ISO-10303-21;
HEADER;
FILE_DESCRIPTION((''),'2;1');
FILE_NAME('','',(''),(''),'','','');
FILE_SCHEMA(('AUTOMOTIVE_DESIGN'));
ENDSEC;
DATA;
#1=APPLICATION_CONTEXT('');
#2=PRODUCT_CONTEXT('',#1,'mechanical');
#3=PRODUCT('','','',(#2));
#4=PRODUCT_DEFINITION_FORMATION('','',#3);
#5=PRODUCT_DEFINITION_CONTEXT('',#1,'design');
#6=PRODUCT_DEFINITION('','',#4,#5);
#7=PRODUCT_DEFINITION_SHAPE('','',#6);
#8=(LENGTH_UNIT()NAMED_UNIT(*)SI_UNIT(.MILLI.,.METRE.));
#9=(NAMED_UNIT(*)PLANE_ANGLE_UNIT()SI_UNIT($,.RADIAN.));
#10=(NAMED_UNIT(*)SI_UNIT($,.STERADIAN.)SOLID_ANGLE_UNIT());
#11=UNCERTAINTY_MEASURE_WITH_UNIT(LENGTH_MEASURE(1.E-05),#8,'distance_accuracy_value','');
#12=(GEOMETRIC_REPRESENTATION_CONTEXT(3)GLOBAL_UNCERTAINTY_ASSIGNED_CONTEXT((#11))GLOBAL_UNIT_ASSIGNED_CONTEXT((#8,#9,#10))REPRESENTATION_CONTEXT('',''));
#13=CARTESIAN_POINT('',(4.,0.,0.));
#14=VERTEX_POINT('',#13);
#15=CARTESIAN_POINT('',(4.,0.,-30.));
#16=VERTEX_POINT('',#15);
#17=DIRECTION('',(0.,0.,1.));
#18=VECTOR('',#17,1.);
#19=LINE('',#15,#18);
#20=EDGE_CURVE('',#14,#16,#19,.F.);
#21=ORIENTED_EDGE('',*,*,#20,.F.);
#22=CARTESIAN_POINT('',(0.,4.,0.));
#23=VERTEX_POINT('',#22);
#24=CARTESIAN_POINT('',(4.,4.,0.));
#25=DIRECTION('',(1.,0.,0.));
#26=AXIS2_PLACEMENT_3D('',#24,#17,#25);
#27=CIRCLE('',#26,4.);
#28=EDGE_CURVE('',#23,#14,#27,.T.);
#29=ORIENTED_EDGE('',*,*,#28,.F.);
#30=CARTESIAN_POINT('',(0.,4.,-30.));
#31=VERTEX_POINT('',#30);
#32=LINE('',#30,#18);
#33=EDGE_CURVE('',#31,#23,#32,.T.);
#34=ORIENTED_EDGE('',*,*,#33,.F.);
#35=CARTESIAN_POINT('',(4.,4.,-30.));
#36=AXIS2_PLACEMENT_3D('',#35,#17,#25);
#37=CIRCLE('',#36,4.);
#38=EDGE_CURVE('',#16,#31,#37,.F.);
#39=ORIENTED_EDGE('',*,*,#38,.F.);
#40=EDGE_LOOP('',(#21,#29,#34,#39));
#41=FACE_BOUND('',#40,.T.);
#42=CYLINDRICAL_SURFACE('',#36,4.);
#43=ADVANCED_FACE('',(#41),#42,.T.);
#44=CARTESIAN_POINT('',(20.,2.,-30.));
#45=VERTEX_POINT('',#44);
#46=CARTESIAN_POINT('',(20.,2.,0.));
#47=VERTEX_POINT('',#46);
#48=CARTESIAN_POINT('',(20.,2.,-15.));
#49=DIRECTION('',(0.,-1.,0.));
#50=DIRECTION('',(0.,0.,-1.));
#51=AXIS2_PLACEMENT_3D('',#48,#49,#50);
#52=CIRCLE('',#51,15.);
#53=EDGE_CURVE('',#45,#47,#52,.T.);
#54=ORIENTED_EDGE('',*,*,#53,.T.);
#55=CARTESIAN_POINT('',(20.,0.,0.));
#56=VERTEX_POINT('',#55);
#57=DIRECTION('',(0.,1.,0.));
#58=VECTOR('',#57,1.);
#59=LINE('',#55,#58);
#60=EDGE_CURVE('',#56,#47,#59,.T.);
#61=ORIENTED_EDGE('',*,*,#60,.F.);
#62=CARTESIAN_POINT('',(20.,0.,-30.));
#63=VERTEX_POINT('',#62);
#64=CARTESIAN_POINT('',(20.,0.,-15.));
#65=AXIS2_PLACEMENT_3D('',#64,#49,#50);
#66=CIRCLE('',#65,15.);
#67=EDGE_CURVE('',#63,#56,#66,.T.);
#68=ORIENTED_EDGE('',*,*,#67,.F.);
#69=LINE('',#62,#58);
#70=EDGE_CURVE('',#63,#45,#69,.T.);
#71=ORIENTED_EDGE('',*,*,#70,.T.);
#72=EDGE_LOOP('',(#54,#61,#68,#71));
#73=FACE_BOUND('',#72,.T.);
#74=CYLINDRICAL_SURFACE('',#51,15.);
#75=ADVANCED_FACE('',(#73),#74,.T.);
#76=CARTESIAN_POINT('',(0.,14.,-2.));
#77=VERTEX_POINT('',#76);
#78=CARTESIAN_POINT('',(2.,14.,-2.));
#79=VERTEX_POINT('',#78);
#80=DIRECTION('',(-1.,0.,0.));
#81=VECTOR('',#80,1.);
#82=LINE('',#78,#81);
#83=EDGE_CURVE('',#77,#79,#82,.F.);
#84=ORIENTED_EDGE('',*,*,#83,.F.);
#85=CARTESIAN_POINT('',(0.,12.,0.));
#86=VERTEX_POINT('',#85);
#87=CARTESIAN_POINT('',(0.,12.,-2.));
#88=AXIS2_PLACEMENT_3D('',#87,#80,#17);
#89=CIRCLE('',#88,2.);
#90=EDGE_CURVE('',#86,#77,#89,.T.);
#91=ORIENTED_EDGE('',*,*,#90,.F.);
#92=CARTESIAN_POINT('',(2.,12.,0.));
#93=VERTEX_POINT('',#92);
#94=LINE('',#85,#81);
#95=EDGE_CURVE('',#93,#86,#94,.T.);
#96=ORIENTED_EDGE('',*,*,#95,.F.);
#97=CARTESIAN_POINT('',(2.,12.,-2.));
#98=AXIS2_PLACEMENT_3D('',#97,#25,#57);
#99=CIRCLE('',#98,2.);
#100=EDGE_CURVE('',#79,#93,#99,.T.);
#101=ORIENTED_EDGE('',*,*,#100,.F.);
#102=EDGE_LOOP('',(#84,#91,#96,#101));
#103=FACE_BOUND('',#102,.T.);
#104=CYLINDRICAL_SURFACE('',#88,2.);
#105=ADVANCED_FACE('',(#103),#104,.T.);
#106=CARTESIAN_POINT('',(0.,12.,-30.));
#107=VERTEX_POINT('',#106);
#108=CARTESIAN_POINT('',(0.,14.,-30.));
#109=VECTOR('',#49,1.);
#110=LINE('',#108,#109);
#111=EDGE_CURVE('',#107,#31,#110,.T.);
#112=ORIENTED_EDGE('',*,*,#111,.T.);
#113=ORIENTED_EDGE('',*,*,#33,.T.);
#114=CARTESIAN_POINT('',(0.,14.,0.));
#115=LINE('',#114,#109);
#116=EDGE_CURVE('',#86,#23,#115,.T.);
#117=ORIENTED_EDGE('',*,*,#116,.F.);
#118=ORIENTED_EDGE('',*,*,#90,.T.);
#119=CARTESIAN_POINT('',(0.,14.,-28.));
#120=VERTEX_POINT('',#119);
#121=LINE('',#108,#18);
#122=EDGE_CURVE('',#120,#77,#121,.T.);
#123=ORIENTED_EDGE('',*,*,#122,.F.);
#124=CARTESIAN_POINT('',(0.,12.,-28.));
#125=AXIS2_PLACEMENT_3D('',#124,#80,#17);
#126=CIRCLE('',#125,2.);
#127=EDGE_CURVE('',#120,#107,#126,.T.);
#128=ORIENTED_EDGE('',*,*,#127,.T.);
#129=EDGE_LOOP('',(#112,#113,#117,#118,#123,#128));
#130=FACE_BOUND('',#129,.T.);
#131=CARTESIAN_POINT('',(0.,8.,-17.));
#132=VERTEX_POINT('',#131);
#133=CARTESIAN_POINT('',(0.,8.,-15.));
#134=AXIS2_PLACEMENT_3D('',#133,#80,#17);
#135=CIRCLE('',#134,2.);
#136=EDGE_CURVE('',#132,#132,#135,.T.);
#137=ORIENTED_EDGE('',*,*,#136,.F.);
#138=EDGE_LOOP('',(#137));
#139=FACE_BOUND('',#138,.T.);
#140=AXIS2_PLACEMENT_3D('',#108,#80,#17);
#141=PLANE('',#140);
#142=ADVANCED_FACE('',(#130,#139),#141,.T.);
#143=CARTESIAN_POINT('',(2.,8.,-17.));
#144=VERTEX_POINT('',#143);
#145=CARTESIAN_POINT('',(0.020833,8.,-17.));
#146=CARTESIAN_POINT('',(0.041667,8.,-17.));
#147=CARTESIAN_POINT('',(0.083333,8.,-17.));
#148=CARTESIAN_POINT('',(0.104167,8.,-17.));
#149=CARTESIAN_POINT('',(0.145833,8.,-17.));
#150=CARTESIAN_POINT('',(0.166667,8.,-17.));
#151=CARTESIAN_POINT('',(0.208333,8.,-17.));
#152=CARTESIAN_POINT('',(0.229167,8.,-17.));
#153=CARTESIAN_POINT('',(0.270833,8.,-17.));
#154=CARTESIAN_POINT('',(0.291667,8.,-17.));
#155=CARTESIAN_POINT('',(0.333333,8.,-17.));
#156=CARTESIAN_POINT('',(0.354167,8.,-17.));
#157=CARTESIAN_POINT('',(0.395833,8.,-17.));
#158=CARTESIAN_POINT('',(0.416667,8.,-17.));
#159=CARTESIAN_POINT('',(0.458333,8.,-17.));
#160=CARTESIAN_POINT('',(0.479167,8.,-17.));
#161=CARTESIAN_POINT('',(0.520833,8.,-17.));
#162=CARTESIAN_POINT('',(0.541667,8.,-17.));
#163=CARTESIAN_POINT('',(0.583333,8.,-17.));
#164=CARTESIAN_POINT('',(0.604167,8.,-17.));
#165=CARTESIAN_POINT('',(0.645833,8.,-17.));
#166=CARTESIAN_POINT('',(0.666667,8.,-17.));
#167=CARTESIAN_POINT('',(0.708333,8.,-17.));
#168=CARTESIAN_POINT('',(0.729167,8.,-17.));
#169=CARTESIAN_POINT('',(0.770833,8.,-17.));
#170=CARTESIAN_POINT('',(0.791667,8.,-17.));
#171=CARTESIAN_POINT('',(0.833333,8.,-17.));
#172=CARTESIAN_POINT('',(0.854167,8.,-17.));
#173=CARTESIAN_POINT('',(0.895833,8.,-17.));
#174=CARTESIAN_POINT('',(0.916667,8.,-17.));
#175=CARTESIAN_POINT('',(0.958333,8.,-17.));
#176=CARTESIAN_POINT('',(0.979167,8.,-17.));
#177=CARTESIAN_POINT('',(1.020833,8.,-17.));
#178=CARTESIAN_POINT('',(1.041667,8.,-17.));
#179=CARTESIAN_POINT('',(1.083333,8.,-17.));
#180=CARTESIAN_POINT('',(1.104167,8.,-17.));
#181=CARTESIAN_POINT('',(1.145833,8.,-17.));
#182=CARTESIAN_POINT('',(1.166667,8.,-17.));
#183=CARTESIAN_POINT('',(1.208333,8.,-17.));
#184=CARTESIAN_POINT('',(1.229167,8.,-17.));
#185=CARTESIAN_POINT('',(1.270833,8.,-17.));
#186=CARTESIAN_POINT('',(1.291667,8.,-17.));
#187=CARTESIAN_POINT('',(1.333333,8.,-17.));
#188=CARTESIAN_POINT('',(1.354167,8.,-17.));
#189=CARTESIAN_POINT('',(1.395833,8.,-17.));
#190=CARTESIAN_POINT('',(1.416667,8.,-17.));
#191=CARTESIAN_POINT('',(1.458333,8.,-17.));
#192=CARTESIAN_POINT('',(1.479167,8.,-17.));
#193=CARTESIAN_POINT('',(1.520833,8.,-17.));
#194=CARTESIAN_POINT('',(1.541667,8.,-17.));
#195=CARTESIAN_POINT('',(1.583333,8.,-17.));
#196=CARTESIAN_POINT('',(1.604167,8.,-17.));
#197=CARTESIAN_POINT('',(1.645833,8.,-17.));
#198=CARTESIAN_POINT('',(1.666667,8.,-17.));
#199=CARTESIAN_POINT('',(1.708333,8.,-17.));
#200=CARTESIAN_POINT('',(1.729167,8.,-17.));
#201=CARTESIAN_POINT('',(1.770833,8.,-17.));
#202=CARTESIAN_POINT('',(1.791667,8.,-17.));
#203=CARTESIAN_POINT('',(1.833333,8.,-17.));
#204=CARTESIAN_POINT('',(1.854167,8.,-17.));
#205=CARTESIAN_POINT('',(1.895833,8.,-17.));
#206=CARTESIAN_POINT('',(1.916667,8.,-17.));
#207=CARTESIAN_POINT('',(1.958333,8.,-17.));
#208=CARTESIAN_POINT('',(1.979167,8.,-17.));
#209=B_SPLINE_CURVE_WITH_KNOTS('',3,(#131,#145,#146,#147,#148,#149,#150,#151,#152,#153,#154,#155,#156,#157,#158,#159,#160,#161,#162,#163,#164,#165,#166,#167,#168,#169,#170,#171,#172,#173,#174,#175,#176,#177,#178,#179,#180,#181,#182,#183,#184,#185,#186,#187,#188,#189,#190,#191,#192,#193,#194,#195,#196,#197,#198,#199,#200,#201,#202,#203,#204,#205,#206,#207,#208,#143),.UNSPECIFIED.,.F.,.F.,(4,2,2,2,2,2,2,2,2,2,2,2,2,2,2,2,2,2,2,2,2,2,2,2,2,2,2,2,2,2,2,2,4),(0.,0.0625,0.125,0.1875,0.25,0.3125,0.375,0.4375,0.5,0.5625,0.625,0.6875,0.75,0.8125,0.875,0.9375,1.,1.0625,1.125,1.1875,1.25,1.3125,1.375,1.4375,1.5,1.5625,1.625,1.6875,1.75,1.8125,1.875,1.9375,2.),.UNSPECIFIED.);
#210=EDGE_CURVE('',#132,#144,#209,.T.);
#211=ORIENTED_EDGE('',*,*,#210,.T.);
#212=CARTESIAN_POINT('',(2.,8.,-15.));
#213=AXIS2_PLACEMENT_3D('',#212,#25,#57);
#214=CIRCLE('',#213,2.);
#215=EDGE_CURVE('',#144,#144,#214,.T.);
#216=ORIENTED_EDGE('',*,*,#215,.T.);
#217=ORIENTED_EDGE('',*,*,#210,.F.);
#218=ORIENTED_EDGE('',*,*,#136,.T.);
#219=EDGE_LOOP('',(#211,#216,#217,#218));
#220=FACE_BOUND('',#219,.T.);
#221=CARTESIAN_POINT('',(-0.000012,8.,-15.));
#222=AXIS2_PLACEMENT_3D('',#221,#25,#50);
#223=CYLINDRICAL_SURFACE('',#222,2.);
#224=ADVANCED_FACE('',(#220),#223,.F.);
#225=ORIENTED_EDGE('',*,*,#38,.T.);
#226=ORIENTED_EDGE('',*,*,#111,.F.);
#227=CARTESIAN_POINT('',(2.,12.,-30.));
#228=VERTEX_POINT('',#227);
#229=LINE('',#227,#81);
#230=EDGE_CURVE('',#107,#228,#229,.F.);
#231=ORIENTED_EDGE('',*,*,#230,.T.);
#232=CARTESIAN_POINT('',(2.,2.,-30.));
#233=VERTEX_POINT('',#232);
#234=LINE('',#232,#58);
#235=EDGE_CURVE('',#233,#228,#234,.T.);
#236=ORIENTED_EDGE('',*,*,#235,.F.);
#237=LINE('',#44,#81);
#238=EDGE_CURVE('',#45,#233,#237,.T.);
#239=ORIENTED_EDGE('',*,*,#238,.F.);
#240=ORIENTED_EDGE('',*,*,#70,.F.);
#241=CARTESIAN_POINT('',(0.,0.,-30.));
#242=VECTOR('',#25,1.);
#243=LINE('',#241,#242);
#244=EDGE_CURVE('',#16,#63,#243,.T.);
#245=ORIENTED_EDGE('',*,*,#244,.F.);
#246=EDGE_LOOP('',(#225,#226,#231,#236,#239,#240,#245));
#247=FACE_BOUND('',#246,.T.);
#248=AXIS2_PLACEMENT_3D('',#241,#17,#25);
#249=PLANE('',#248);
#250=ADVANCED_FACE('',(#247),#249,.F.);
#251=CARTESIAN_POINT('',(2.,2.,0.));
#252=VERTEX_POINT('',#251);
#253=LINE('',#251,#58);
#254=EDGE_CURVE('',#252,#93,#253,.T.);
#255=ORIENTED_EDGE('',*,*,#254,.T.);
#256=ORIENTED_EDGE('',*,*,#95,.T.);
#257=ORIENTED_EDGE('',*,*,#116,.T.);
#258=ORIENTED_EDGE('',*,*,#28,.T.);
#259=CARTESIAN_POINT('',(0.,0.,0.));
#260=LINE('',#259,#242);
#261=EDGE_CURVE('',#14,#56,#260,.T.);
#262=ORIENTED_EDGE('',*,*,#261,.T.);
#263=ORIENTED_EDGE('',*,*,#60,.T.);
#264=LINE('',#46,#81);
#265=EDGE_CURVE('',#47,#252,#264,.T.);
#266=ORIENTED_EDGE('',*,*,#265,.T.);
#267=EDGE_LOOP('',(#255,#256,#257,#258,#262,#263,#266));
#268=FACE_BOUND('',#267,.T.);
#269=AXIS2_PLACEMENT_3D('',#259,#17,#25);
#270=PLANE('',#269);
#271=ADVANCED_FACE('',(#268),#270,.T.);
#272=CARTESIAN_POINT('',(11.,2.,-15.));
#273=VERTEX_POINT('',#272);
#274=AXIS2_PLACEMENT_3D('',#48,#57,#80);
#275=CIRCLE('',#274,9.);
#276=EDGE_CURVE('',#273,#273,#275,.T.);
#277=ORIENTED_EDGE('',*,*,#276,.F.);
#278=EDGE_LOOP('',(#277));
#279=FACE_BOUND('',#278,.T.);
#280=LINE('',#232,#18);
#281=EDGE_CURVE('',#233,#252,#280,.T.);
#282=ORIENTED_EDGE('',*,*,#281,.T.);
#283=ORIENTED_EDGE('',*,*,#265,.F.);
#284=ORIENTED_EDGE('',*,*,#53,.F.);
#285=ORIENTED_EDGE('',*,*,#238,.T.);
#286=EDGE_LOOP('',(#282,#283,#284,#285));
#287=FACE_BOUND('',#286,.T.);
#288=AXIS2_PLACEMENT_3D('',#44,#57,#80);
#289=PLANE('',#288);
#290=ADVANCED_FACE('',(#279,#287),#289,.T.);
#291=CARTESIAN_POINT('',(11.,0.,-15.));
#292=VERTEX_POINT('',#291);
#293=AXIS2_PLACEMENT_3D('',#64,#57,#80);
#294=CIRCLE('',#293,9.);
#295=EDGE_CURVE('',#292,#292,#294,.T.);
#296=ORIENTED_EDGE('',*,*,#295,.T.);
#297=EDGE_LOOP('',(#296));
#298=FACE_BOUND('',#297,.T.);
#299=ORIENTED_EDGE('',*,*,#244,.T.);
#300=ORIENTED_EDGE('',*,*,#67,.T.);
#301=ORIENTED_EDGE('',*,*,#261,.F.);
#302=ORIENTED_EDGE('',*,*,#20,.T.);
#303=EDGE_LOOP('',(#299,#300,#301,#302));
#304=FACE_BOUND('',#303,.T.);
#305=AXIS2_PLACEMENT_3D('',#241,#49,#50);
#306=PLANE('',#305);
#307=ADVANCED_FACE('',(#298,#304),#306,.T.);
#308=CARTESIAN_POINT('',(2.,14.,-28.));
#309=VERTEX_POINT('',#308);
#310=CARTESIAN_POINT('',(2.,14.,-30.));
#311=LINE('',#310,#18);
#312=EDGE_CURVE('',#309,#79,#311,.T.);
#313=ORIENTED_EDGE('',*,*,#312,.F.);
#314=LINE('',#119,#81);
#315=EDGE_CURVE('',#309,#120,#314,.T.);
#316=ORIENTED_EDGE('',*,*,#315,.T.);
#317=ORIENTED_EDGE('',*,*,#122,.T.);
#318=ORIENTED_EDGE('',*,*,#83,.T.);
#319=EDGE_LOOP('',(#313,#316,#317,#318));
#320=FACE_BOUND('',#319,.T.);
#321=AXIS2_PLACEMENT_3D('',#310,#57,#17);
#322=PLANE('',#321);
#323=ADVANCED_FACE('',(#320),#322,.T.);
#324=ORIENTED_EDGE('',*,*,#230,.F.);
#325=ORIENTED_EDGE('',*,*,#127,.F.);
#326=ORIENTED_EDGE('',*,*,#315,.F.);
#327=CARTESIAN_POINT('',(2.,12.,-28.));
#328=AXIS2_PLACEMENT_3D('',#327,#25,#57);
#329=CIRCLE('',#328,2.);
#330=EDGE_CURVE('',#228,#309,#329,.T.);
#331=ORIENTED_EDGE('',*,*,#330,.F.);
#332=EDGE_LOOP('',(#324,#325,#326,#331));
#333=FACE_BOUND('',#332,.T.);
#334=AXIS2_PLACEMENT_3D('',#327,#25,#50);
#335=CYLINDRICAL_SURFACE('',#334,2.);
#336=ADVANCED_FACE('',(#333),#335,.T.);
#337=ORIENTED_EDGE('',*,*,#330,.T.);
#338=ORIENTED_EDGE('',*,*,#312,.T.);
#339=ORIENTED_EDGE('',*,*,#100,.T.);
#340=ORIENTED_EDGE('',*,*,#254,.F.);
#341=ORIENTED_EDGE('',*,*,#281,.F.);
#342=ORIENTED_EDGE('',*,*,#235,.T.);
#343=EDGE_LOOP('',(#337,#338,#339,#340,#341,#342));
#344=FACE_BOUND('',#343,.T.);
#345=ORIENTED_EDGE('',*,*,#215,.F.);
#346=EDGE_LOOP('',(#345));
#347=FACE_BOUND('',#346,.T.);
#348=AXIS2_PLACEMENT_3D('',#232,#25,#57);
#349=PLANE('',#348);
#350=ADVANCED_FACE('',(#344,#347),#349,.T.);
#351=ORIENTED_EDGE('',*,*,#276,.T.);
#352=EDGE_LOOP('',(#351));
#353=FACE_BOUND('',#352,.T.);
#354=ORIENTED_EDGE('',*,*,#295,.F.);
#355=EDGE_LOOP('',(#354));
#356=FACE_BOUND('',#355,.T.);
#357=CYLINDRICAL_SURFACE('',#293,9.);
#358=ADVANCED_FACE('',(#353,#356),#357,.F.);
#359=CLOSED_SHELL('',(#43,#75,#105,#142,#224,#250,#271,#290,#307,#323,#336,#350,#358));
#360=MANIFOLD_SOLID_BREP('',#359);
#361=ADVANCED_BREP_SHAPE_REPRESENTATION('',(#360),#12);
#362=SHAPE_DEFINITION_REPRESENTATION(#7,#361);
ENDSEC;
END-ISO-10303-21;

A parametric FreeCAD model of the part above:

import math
import FreeCAD as App
import Part
import Sketcher


def edges_at(feature, points):
    """Names of the edges that pass closest to the given points."""
    edges = feature.Shape.Edges
    near = lambda p: min(range(len(edges)), key=lambda i: edges[i].distToShape(Part.Vertex(*p))[0])
    return sorted({f"Edge{near(p) + 1}" for p in points})

doc = App.newDocument("Part")
params = doc.addObject("Spreadsheet::Sheet", "Params")
for row, (alias, value) in enumerate([
    ("sketch1_width", "20 mm"),
    ("sketch1_width2", "18 mm"),
    ("sketch1_height", "12 mm"),
    ("pad1_length", "30 mm"),
    ("sketch2_radius", "15 mm"),
    ("sketch2_radius2", "5 mm"),
    ("pad2_length", "2 mm"),
    ("sketch3_diameter", "18 mm"),
    ("fillet_radius", "4 mm"),
    ("sketch4_diameter", "4 mm"),
    ("fillet2_radius", "2 mm"),
], start=1):
    params.set(f"A{row}", alias)
    params.set(f"B{row}", "=" + value)
    params.setAlias(f"B{row}", alias)

body = doc.addObject("PartDesign::Body", "Body")

# Sketch on XY plane
sketch1 = doc.addObject("Sketcher::SketchObject", "Sketch")
body.addObject(sketch1)
sketch1.AttachmentSupport = (doc.XY_Plane, [""])
sketch1.MapMode = "FlatFace"
sketch1.addGeometry([
    Part.LineSegment(App.Vector(0, 0, 0), App.Vector(20, 0, 0)),  # 0
    Part.LineSegment(App.Vector(20, 0, 0), App.Vector(20, 2, 0)),  # 1
    Part.LineSegment(App.Vector(20, 2, 0), App.Vector(2, 2, 0)),  # 2
    Part.LineSegment(App.Vector(2, 2, 0), App.Vector(2, 14, 0)),  # 3
    Part.LineSegment(App.Vector(2, 14, 0), App.Vector(0, 14, 0)),  # 4
    Part.LineSegment(App.Vector(0, 14, 0), App.Vector(0, 0, 0)),  # 5
], False)
sketch1.addConstraint([
    Sketcher.Constraint("Coincident", 0, 2, 1, 1),
    Sketcher.Constraint("Coincident", 1, 2, 2, 1),
    Sketcher.Constraint("Coincident", 2, 2, 3, 1),
    Sketcher.Constraint("Coincident", 3, 2, 4, 1),
    Sketcher.Constraint("Coincident", 4, 2, 5, 1),
    Sketcher.Constraint("Coincident", 5, 2, 0, 1),
    Sketcher.Constraint("Horizontal", 0),
    Sketcher.Constraint("Vertical", 1),
    Sketcher.Constraint("Horizontal", 2),
    Sketcher.Constraint("Vertical", 3),
    Sketcher.Constraint("Horizontal", 4),
    Sketcher.Constraint("Vertical", 5),
    Sketcher.Constraint("Coincident", 5, 2, -1, 1),
    Sketcher.Constraint("Equal", 4, 1),
    Sketcher.Constraint("DistanceX", 0, 1, 0, 2, 20.0),
    Sketcher.Constraint("DistanceX", 2, 2, 2, 1, 18.0),
    Sketcher.Constraint("DistanceY", 3, 1, 3, 2, 12.0),
])
sketch1.setExpression("Constraints[14]", "Params.sketch1_width")
sketch1.setExpression("Constraints[15]", "Params.sketch1_width2")
sketch1.setExpression("Constraints[16]", "Params.sketch1_height")
pad1 = doc.addObject("PartDesign::Pad", "Pad")
body.addObject(pad1)
pad1.Profile = sketch1
pad1.setExpression("Length", "Params.pad1_length")
pad1.Reversed = True

# Sketch on XZ plane
sketch2 = doc.addObject("Sketcher::SketchObject", "Sketch001")
body.addObject(sketch2)
sketch2.AttachmentSupport = (doc.XZ_Plane, [""])
sketch2.MapMode = "FlatFace"
sketch2.addGeometry([
    Part.ArcOfCircle(Part.Circle(App.Vector(20, -15, 0), App.Vector(0, 0, 1), 15), math.radians(-90), math.radians(90)),
    Part.LineSegment(App.Vector(20, -30, 0), App.Vector(20, -20, 0)),
    Part.ArcOfCircle(Part.Circle(App.Vector(20, -15, 0), App.Vector(0, 0, 1), 5), math.radians(-90), math.radians(90)),
    Part.LineSegment(App.Vector(20, -10, 0), App.Vector(20, 0, 0)),
], False)
sketch2.addConstraint([
    Sketcher.Constraint("Coincident", 0, 1, 1, 1),
    Sketcher.Constraint("Coincident", 1, 2, 2, 1),
    Sketcher.Constraint("Coincident", 2, 2, 3, 1),
    Sketcher.Constraint("Coincident", 3, 2, 0, 2),
    Sketcher.Constraint("Vertical", 1),
    Sketcher.Constraint("Vertical", 3),
    Sketcher.Constraint("Coincident", 2, 3, 0, 3),
    Sketcher.Constraint("PointOnObject", 3, 2, -1),
    Sketcher.Constraint("Vertical", 2, 3, 0, 1),
    Sketcher.Constraint("Vertical", 1, 2, 2, 2),
    Sketcher.Constraint("Radius", 0, 15.0),
    Sketcher.Constraint("Radius", 2, 5.0),
    Sketcher.Constraint("DistanceX", -1, 1, 0, 3, 20.0),
])
sketch2.setExpression("Constraints[10]", "Params.sketch2_radius")
sketch2.setExpression("Constraints[11]", "Params.sketch2_radius2")
pad2 = doc.addObject("PartDesign::Pad", "Pad001")
body.addObject(pad2)
pad2.Profile = sketch2
pad2.setExpression("Length", "Params.pad2_length")
pad2.Reversed = True

# Sketch on XZ plane
sketch3 = doc.addObject("Sketcher::SketchObject", "Sketch002")
body.addObject(sketch3)
sketch3.AttachmentSupport = (doc.XZ_Plane, [""])
sketch3.MapMode = "FlatFace"
sketch3.AttachmentOffset = App.Placement(App.Vector(0, 0, -2), App.Rotation())
sketch3.addGeometry(Part.Circle(App.Vector(20, -15, 0), App.Vector(0, 0, 1), 9), False)
sketch3.addConstraint([
    Sketcher.Constraint("Diameter", 0, 18.0),
    Sketcher.Constraint("DistanceX", -1, 1, 0, 3, 20.0),
    Sketcher.Constraint("DistanceY", 0, 3, -1, 1, 15.0),
])
sketch3.setExpression("Constraints[0]", "Params.sketch3_diameter")
pocket1 = doc.addObject("PartDesign::Pocket", "Pocket")
body.addObject(pocket1)
pocket1.Profile = sketch3
pocket1.Type = "ThroughAll"
pocket1.Reversed = True
doc.recompute()

fillet = doc.addObject("PartDesign::Fillet", "Fillet")
body.addObject(fillet)
fillet.Base = (pocket1, edges_at(pocket1, [(0, 0, -15)]))
fillet.setExpression("Radius", "Params.fillet_radius")

# Sketch on YZ plane
sketch4 = doc.addObject("Sketcher::SketchObject", "Sketch003")
body.addObject(sketch4)
sketch4.AttachmentSupport = (doc.YZ_Plane, [""])
sketch4.MapMode = "FlatFace"
sketch4.addGeometry(Part.Circle(App.Vector(8, -15, 0), App.Vector(0, 0, 1), 2), False)
sketch4.addConstraint([
    Sketcher.Constraint("Diameter", 0, 4.0),
    Sketcher.Constraint("DistanceX", -1, 1, 0, 3, 8.0),
    Sketcher.Constraint("DistanceY", 0, 3, -1, 1, 15.0),
])
sketch4.setExpression("Constraints[0]", "Params.sketch4_diameter")
pocket2 = doc.addObject("PartDesign::Pocket", "Pocket001")
body.addObject(pocket2)
pocket2.Profile = sketch4
pocket2.Type = "ThroughAll"
pocket2.Midplane = True
doc.recompute()

fillet2 = doc.addObject("PartDesign::Fillet", "Fillet001")
body.addObject(fillet2)
fillet2.Base = (pocket2, edges_at(pocket2, [(1, 14, -30), (1, 14, 0)]))
fillet2.setExpression("Radius", "Params.fillet2_radius")

doc.recompute()
